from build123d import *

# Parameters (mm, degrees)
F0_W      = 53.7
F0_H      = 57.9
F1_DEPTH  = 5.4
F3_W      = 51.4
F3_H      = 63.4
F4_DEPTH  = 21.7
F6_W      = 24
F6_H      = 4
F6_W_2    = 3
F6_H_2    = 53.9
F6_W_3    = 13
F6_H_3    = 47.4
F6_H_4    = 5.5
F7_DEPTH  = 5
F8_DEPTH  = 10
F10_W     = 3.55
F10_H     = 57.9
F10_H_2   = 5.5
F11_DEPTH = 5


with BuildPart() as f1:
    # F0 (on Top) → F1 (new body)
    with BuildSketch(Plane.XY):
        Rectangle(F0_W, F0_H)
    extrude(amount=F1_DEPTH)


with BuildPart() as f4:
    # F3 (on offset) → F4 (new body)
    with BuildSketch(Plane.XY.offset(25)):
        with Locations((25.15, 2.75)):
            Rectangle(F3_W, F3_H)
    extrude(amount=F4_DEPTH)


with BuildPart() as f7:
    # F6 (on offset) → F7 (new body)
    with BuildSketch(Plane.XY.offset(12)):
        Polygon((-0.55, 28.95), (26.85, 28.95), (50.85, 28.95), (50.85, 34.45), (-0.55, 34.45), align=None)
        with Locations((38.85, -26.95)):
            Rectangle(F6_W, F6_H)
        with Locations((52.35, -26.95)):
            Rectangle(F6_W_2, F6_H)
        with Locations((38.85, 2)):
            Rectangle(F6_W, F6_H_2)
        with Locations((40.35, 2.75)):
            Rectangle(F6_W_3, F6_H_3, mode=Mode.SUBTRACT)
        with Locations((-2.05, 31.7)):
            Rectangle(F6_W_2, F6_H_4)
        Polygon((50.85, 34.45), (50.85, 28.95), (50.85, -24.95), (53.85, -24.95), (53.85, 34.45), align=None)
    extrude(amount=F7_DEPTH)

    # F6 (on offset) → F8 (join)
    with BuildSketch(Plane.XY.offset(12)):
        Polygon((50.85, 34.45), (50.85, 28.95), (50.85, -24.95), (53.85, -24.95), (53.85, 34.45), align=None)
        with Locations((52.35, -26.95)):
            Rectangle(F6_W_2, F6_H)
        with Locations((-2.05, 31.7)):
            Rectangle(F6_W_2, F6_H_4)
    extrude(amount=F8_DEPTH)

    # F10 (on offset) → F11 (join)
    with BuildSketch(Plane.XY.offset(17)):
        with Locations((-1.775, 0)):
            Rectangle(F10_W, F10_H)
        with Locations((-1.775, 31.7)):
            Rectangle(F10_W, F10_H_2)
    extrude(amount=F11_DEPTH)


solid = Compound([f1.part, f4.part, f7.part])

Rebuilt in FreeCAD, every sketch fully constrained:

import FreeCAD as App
import Part
import Sketcher

doc = App.newDocument("Part")
body = doc.addObject("PartDesign::Body", "Body")

# Sketch on XY plane
sketch1 = doc.addObject("Sketcher::SketchObject", "Sketch")
body.addObject(sketch1)
sketch1.AttachmentSupport = (doc.XY_Plane, [""])
sketch1.MapMode = "FlatFace"
sketch1.addGeometry([
    Part.LineSegment(App.Vector(-26.85, 28.95, 0), App.Vector(-26.85, -28.95, 0)),
    Part.LineSegment(App.Vector(-26.85, -28.95, 0), App.Vector(26.85, -28.95, 0)),
    Part.LineSegment(App.Vector(26.85, -28.95, 0), App.Vector(26.85, 28.95, 0)),
    Part.LineSegment(App.Vector(26.85, 28.95, 0), App.Vector(-26.85, 28.95, 0)),
], False)
sketch1.addConstraint([
    Sketcher.Constraint("Coincident", 0, 2, 1, 1),
    Sketcher.Constraint("Coincident", 1, 2, 2, 1),
    Sketcher.Constraint("Coincident", 2, 2, 3, 1),
    Sketcher.Constraint("Coincident", 3, 2, 0, 1),
    Sketcher.Constraint("Vertical", 0),
    Sketcher.Constraint("Horizontal", 1),
    Sketcher.Constraint("Vertical", 2),
    Sketcher.Constraint("Horizontal", 3),
    Sketcher.Constraint("Symmetric", 0, 2, 2, 2, -1, 1),
    Sketcher.Constraint("DistanceX", 1, 1, 1, 2, 53.7),
    Sketcher.Constraint("DistanceY", 0, 2, 0, 1, 57.9),
])
pad1 = doc.addObject("PartDesign::Pad", "Pad")
body.addObject(pad1)
pad1.Profile = sketch1
pad1.Length = 5.4
body2 = doc.addObject("PartDesign::Body", "Body001")

# Sketch on XY plane
sketch2 = doc.addObject("Sketcher::SketchObject", "Sketch001")
body2.addObject(sketch2)
sketch2.AttachmentSupport = (doc.getObject("XY_Plane001"), [""])
sketch2.MapMode = "FlatFace"
sketch2.AttachmentOffset = App.Placement(App.Vector(0, 0, 25), App.Rotation())
sketch2.addGeometry([
    Part.LineSegment(App.Vector(-0.55, 34.45, 0), App.Vector(-0.55, -28.95, 0)),
    Part.LineSegment(App.Vector(-0.55, -28.95, 0), App.Vector(50.85, -28.95, 0)),
    Part.LineSegment(App.Vector(50.85, -28.95, 0), App.Vector(50.85, 34.45, 0)),
    Part.LineSegment(App.Vector(50.85, 34.45, 0), App.Vector(-0.55, 34.45, 0)),
], False)
sketch2.addConstraint([
    Sketcher.Constraint("Coincident", 0, 2, 1, 1),
    Sketcher.Constraint("Coincident", 1, 2, 2, 1),
    Sketcher.Constraint("Coincident", 2, 2, 3, 1),
    Sketcher.Constraint("Coincident", 3, 2, 0, 1),
    Sketcher.Constraint("Vertical", 0),
    Sketcher.Constraint("Horizontal", 1),
    Sketcher.Constraint("Vertical", 2),
    Sketcher.Constraint("Horizontal", 3),
    Sketcher.Constraint("DistanceX", 1, 1, 1, 2, 51.4),
    Sketcher.Constraint("DistanceY", 0, 2, 0, 1, 63.4),
    Sketcher.Constraint("DistanceX", 0, 2, -1, 1, 0.55),
    Sketcher.Constraint("DistanceY", 0, 2, -1, 1, 28.95),
])
pad2 = doc.addObject("PartDesign::Pad", "Pad001")
body2.addObject(pad2)
pad2.Profile = sketch2
pad2.Length = 21.7
body3 = doc.addObject("PartDesign::Body", "Body002")

# Sketch on XY plane
sketch3 = doc.addObject("Sketcher::SketchObject", "Sketch002")
body3.addObject(sketch3)
sketch3.AttachmentSupport = (doc.getObject("XY_Plane002"), [""])
sketch3.MapMode = "FlatFace"
sketch3.AttachmentOffset = App.Placement(App.Vector(0, 0, 12), App.Rotation())
sketch3.addGeometry([
    Part.LineSegment(App.Vector(26.85, 28.95, 0), App.Vector(26.85, -28.95, 0)),  # 0
    Part.LineSegment(App.Vector(26.85, -28.95, 0), App.Vector(53.85, -28.95, 0)),  # 1
    Part.LineSegment(App.Vector(53.85, -28.95, 0), App.Vector(53.85, 34.45, 0)),  # 2
    Part.LineSegment(App.Vector(53.85, 34.45, 0), App.Vector(-3.55, 34.45, 0)),  # 3
    Part.LineSegment(App.Vector(-3.55, 34.45, 0), App.Vector(-3.55, 28.95, 0)),  # 4
    Part.LineSegment(App.Vector(-3.55, 28.95, 0), App.Vector(26.85, 28.95, 0)),  # 5
    Part.LineSegment(App.Vector(46.85, -20.95, 0), App.Vector(33.85, -20.95, 0)),  # 6
    Part.LineSegment(App.Vector(33.85, -20.95, 0), App.Vector(33.85, 26.45, 0)),  # 7
    Part.LineSegment(App.Vector(33.85, 26.45, 0), App.Vector(46.85, 26.45, 0)),  # 8
    Part.LineSegment(App.Vector(46.85, 26.45, 0), App.Vector(46.85, -20.95, 0)),  # 9
], False)
sketch3.addConstraint([
    Sketcher.Constraint("Coincident", 0, 2, 1, 1),
    Sketcher.Constraint("Coincident", 1, 2, 2, 1),
    Sketcher.Constraint("Coincident", 2, 2, 3, 1),
    Sketcher.Constraint("Coincident", 3, 2, 4, 1),
    Sketcher.Constraint("Coincident", 4, 2, 5, 1),
    Sketcher.Constraint("Coincident", 5, 2, 0, 1),
    Sketcher.Constraint("Coincident", 6, 2, 7, 1),
    Sketcher.Constraint("Coincident", 7, 2, 8, 1),
    Sketcher.Constraint("Coincident", 8, 2, 9, 1),
    Sketcher.Constraint("Coincident", 9, 2, 6, 1),
    Sketcher.Constraint("Vertical", 0),
    Sketcher.Constraint("Horizontal", 1),
    Sketcher.Constraint("Vertical", 2),
    Sketcher.Constraint("Horizontal", 3),
    Sketcher.Constraint("Vertical", 4),
    Sketcher.Constraint("Horizontal", 5),
    Sketcher.Constraint("Horizontal", 6),
    Sketcher.Constraint("Vertical", 7),
    Sketcher.Constraint("Horizontal", 8),
    Sketcher.Constraint("Vertical", 9),
    Sketcher.Constraint("DistanceX", 1, 1, 1, 2, 27.0),
    Sketcher.Constraint("DistanceX", 6, 2, 6, 1, 13.0),
    Sketcher.Constraint("DistanceX", 3, 2, 3, 1, 57.4),
    Sketcher.Constraint("DistanceY", 0, 2, 0, 1, 57.9),
    Sketcher.Constraint("DistanceY", 2, 1, 2, 2, 63.4),
    Sketcher.Constraint("DistanceY", 7, 1, 7, 2, 47.4),
    Sketcher.Constraint("DistanceX", 0, 2, 6, 2, 7.0),
    Sketcher.Constraint("DistanceY", 0, 2, 6, 2, 8.0),
    Sketcher.Constraint("DistanceX", -1, 1, 0, 2, 26.85),
    Sketcher.Constraint("DistanceY", 0, 2, -1, 1, 28.95),
])
pad3 = doc.addObject("PartDesign::Pad", "Pad002")
body3.addObject(pad3)
pad3.Profile = sketch3
pad3.Length = 5

# Sketch on XY plane
sketch4 = doc.addObject("Sketcher::SketchObject", "Sketch003")
body3.addObject(sketch4)
sketch4.AttachmentSupport = (doc.getObject("XY_Plane002"), [""])
sketch4.MapMode = "FlatFace"
sketch4.AttachmentOffset = App.Placement(App.Vector(0, 0, 12), App.Rotation())
sketch4.addGeometry([
    Part.LineSegment(App.Vector(50.85, 34.45, 0), App.Vector(50.85, -28.95, 0)),  # 0
    Part.LineSegment(App.Vector(50.85, -28.95, 0), App.Vector(53.85, -28.95, 0)),  # 1
    Part.LineSegment(App.Vector(53.85, -28.95, 0), App.Vector(53.85, 34.45, 0)),  # 2
    Part.LineSegment(App.Vector(53.85, 34.45, 0), App.Vector(50.85, 34.45, 0)),  # 3
    Part.LineSegment(App.Vector(-3.55, 34.45, 0), App.Vector(-3.55, 28.95, 0)),  # 4
    Part.LineSegment(App.Vector(-3.55, 28.95, 0), App.Vector(-0.55, 28.95, 0)),  # 5
    Part.LineSegment(App.Vector(-0.55, 28.95, 0), App.Vector(-0.55, 34.45, 0)),  # 6
    Part.LineSegment(App.Vector(-0.55, 34.45, 0), App.Vector(-3.55, 34.45, 0)),  # 7
], False)
sketch4.addConstraint([
    Sketcher.Constraint("Coincident", 0, 2, 1, 1),
    Sketcher.Constraint("Coincident", 1, 2, 2, 1),
    Sketcher.Constraint("Coincident", 2, 2, 3, 1),
    Sketcher.Constraint("Coincident", 3, 2, 0, 1),
    Sketcher.Constraint("Coincident", 4, 2, 5, 1),
    Sketcher.Constraint("Coincident", 5, 2, 6, 1),
    Sketcher.Constraint("Coincident", 6, 2, 7, 1),
    Sketcher.Constraint("Coincident", 7, 2, 4, 1),
    Sketcher.Constraint("Vertical", 0),
    Sketcher.Constraint("Horizontal", 1),
    Sketcher.Constraint("Vertical", 2),
    Sketcher.Constraint("Horizontal", 3),
    Sketcher.Constraint("Vertical", 4),
    Sketcher.Constraint("Horizontal", 5),
    Sketcher.Constraint("Vertical", 6),
    Sketcher.Constraint("Horizontal", 7),
    Sketcher.Constraint("Horizontal", 3, 2, 6, 2),
    Sketcher.Constraint("Equal", 3, 5),
    Sketcher.Constraint("DistanceX", 1, 1, 1, 2, 3.0),
    Sketcher.Constraint("DistanceY", 0, 2, 0, 1, 63.4),
    Sketcher.Constraint("DistanceY", 4, 2, 4, 1, 5.5),
    Sketcher.Constraint("DistanceX", 4, 2, 3, 2, 54.4),
    Sketcher.Constraint("DistanceX", -1, 1, 0, 2, 50.85),
    Sketcher.Constraint("DistanceY", 0, 2, -1, 1, 28.95),
])
pad4 = doc.addObject("PartDesign::Pad", "Pad003")
body3.addObject(pad4)
pad4.Profile = sketch4
pad4.Length = 10

# Sketch on XY plane
sketch5 = doc.addObject("Sketcher::SketchObject", "Sketch004")
body3.addObject(sketch5)
sketch5.AttachmentSupport = (doc.getObject("XY_Plane002"), [""])
sketch5.MapMode = "FlatFace"
sketch5.AttachmentOffset = App.Placement(App.Vector(0, 0, 17), App.Rotation())
sketch5.addGeometry([
    Part.LineSegment(App.Vector(-3.55, -28.95, 0), App.Vector(0, -28.95, 0)),
    Part.LineSegment(App.Vector(0, -28.95, 0), App.Vector(0, 34.45, 0)),
    Part.LineSegment(App.Vector(0, 34.45, 0), App.Vector(-3.55, 34.45, 0)),
    Part.LineSegment(App.Vector(-3.55, 34.45, 0), App.Vector(-3.55, -28.95, 0)),
], False)
sketch5.addConstraint([
    Sketcher.Constraint("Coincident", 0, 2, 1, 1),
    Sketcher.Constraint("Coincident", 1, 2, 2, 1),
    Sketcher.Constraint("Coincident", 2, 2, 3, 1),
    Sketcher.Constraint("Coincident", 3, 2, 0, 1),
    Sketcher.Constraint("Horizontal", 0),
    Sketcher.Constraint("Vertical", 1),
    Sketcher.Constraint("Horizontal", 2),
    Sketcher.Constraint("Vertical", 3),
    Sketcher.Constraint("PointOnObject", 0, 2, -2),
    Sketcher.Constraint("DistanceY", 1, 1, 1, 2, 63.4),
    Sketcher.Constraint("DistanceX", 0, 1, 0, 2, 3.55),
    Sketcher.Constraint("DistanceY", 0, 2, -1, 1, 28.95),
])
pad5 = doc.addObject("PartDesign::Pad", "Pad004")
body3.addObject(pad5)
pad5.Profile = sketch5
pad5.Length = 5

doc.recompute()
